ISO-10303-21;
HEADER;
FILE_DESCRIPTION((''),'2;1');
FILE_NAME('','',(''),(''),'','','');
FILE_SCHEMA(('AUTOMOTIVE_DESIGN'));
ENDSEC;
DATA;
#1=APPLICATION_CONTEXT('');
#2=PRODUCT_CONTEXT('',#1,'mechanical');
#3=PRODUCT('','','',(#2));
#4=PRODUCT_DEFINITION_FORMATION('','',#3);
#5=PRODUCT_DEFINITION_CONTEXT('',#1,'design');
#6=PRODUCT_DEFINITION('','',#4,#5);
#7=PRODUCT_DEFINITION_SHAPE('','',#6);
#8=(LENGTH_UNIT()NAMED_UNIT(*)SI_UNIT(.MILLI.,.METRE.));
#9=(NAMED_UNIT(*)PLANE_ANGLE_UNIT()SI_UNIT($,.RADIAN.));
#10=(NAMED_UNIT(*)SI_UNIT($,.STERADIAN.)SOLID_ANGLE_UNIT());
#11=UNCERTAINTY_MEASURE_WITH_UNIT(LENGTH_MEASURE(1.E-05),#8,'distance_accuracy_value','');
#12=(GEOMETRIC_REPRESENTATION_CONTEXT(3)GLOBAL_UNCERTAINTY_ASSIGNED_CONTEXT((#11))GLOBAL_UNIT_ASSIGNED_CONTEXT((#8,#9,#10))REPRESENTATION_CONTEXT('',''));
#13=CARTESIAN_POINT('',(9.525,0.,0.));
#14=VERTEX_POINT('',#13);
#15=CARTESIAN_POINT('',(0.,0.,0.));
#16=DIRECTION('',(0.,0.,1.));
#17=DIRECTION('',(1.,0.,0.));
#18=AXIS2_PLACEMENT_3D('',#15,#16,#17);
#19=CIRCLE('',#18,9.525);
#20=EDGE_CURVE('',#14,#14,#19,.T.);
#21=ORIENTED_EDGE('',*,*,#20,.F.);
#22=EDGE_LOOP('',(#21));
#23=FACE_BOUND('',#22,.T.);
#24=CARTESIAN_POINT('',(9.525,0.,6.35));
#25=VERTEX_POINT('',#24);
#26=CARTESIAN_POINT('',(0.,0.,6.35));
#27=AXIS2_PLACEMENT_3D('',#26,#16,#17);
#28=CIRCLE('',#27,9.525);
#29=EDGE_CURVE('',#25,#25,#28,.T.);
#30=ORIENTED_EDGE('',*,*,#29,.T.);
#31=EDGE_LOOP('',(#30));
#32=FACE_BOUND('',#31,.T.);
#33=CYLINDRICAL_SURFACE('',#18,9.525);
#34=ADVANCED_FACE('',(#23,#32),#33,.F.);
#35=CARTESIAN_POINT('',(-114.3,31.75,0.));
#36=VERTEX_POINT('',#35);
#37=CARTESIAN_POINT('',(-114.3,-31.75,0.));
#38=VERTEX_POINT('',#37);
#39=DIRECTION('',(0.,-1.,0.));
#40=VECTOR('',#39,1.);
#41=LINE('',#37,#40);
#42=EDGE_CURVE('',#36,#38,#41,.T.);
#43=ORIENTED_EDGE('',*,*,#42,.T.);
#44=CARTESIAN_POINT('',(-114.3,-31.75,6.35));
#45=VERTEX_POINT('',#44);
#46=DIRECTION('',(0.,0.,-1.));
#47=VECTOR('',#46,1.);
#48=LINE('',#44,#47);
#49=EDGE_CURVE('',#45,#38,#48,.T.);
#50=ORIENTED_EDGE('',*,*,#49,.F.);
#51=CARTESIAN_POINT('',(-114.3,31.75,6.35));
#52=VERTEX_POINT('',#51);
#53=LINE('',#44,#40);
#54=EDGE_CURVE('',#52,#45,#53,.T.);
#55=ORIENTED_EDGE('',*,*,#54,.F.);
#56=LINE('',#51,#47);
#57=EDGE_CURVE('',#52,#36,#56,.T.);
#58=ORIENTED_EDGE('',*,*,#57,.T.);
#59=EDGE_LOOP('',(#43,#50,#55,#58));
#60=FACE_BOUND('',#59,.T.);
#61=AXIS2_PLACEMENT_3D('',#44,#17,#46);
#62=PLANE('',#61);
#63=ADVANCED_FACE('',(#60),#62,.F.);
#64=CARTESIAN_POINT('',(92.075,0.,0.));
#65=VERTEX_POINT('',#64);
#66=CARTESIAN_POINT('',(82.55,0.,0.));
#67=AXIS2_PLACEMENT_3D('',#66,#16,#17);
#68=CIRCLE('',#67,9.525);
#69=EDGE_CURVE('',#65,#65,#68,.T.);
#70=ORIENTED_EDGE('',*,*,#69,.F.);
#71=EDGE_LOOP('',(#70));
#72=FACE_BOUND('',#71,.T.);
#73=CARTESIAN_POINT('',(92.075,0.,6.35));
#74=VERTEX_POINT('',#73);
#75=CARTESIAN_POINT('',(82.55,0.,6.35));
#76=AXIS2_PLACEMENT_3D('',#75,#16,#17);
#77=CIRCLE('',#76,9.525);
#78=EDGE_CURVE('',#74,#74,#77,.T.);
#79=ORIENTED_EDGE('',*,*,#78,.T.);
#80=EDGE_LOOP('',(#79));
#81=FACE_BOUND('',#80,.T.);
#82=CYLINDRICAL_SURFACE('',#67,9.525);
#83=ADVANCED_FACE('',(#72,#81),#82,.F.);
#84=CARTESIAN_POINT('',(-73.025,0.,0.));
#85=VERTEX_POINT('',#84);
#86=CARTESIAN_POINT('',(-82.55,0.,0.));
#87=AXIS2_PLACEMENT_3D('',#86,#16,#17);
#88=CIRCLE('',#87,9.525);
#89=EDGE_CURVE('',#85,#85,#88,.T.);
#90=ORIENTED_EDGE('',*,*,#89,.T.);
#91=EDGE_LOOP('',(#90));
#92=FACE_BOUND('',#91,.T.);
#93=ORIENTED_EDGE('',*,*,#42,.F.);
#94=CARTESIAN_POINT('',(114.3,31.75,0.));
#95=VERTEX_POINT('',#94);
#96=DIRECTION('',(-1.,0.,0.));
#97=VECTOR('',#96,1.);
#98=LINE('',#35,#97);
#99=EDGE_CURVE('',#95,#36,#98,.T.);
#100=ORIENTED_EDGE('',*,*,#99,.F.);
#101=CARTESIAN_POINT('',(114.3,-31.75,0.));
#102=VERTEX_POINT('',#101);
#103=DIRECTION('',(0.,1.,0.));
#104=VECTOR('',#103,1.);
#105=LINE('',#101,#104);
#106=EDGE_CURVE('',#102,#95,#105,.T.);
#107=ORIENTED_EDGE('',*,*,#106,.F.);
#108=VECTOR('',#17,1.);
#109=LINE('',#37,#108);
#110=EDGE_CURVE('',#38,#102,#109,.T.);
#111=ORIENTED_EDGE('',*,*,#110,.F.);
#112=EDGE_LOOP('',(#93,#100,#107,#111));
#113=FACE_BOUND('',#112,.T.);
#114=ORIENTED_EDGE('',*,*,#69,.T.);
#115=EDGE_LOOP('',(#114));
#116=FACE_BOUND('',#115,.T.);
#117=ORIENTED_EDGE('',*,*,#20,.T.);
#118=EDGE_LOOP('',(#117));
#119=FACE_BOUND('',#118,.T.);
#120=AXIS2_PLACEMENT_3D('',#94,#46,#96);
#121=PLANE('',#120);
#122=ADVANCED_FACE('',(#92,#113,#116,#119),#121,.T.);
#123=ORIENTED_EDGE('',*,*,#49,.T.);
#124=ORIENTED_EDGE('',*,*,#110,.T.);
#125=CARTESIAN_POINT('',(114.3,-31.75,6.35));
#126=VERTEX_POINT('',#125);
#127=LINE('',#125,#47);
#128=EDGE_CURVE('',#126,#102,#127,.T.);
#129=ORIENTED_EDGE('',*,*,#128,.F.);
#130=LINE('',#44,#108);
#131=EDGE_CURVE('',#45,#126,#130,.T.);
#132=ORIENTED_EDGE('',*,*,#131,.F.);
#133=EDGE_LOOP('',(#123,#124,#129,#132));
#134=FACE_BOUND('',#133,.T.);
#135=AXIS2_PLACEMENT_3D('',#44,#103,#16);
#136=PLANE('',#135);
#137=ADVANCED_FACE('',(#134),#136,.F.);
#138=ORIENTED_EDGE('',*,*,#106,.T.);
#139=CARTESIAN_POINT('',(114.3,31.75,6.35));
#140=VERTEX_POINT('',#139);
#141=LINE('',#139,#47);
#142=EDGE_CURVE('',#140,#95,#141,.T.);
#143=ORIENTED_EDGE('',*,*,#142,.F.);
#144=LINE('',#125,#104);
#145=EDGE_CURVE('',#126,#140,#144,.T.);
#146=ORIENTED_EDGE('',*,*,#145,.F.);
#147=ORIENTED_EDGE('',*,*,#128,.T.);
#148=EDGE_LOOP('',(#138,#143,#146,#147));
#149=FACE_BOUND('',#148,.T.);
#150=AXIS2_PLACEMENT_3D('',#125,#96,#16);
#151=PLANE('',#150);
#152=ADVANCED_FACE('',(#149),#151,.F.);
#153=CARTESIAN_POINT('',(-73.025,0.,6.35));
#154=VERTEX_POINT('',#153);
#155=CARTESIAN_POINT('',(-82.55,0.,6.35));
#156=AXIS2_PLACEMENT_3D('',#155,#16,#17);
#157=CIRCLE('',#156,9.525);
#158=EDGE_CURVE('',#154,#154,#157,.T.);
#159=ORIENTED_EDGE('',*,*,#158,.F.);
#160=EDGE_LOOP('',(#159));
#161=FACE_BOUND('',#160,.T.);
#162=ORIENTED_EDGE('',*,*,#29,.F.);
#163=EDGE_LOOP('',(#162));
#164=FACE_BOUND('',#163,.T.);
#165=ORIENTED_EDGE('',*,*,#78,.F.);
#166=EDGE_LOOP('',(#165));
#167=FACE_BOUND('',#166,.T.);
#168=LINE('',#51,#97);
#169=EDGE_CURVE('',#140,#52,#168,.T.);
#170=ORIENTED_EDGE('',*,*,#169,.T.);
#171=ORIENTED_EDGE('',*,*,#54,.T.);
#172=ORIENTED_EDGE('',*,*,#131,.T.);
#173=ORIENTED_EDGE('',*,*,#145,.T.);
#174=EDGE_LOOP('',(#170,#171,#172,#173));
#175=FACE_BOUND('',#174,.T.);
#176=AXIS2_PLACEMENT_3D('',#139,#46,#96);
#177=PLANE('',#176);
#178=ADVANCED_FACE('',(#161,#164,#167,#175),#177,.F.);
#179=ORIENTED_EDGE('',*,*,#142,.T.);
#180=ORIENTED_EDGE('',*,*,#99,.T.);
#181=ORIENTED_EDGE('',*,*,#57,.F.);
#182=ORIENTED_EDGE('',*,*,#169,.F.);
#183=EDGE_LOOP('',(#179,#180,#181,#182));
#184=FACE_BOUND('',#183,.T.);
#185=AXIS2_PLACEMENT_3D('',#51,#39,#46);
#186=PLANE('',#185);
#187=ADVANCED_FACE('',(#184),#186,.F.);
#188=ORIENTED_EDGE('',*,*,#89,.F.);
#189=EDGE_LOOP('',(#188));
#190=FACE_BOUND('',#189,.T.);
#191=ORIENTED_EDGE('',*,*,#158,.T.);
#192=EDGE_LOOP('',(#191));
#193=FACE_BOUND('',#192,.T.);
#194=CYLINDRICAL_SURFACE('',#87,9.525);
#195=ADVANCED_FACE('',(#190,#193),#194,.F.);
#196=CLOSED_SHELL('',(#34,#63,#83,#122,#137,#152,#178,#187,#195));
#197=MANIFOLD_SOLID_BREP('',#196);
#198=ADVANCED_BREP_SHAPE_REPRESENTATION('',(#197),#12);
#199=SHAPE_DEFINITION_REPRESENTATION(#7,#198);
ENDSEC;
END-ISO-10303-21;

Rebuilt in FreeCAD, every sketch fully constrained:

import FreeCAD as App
import Part
import Sketcher

V = App.Vector
Q = App.Units.Quantity


def add_polygon(sketch, points):
    """Adds a closed chain of lines whose ends are joined by coincident constraints."""
    first, n = sketch.GeometryCount, len(points)
    for a, b in zip(points, points[1:] + points[:1]):
        sketch.addGeometry(Part.LineSegment(App.Vector(*a, 0), App.Vector(*b, 0)), False)
    for i in range(n):
        sketch.addConstraint(Sketcher.Constraint("Coincident", first + i, 2, first + (i + 1) % n, 1))

doc = App.newDocument("Part")
body = doc.addObject("PartDesign::Body", "Body")

# Sketch on XY plane
sketch1 = body.newObject("Sketcher::SketchObject", "Sketch")
sketch1.AttachmentSupport = (doc.getObject("XY_Plane"), [""])
sketch1.MapMode = "FlatFace"
add_polygon(sketch1, [(-114, 32), (-114, -32), (114, -32), (114, 32)])  # lines 0-3
sketch1.addConstraint(Sketcher.Constraint("Vertical", 0))
sketch1.addConstraint(Sketcher.Constraint("Horizontal", 1))
sketch1.addConstraint(Sketcher.Constraint("Vertical", 2))
sketch1.addConstraint(Sketcher.Constraint("Horizontal", 3))
sketch1.addConstraint(Sketcher.Constraint("Symmetric", 0, 2, 2, 2, -1, 1))
sketch1.addConstraint(Sketcher.Constraint("DistanceX", 1, 1, 1, 2, Q("9 in")))
sketch1.addConstraint(Sketcher.Constraint("DistanceY", 0, 2, 0, 1, Q("2.5 in")))
pad1 = body.newObject("PartDesign::Pad", "Pad")
pad1.Profile = sketch1
pad1.Length = Q("0.25 in")

# Sketch on XY plane
sketch2 = body.newObject("Sketcher::SketchObject", "Sketch001")
sketch2.AttachmentSupport = (doc.getObject("XY_Plane"), [""])
sketch2.MapMode = "FlatFace"
sketch2.AttachmentOffset = App.Placement(V(0, 0, 0.25 * 25.4), App.Rotation())
sketch2.addGeometry(Part.Circle(V(-83, 0, 0), V(0, 0, 1), 10), False)
sketch2.addConstraint(Sketcher.Constraint("PointOnObject", 0, 3, -1))
sketch2.addConstraint(Sketcher.Constraint("Diameter", 0, Q("0.75 in")))
sketch2.addConstraint(Sketcher.Constraint("DistanceX", 0, 3, -1, 1, Q("3.25 in")))
pocket1 = body.newObject("PartDesign::Pocket", "Pocket")
pocket1.Profile = sketch2
pocket1.Type = "ThroughAll"
doc.recompute()

linearpattern = body.newObject("PartDesign::LinearPattern", "LinearPattern")
linearpattern.Originals = [pocket1]
linearpattern.Direction = (doc.getObject("X_Axis"), [""])
linearpattern.Mode = "offset"
linearpattern.Offset = Q("3.25 in")
linearpattern.Occurrences = 3
body.Tip = linearpattern

doc.recompute()
